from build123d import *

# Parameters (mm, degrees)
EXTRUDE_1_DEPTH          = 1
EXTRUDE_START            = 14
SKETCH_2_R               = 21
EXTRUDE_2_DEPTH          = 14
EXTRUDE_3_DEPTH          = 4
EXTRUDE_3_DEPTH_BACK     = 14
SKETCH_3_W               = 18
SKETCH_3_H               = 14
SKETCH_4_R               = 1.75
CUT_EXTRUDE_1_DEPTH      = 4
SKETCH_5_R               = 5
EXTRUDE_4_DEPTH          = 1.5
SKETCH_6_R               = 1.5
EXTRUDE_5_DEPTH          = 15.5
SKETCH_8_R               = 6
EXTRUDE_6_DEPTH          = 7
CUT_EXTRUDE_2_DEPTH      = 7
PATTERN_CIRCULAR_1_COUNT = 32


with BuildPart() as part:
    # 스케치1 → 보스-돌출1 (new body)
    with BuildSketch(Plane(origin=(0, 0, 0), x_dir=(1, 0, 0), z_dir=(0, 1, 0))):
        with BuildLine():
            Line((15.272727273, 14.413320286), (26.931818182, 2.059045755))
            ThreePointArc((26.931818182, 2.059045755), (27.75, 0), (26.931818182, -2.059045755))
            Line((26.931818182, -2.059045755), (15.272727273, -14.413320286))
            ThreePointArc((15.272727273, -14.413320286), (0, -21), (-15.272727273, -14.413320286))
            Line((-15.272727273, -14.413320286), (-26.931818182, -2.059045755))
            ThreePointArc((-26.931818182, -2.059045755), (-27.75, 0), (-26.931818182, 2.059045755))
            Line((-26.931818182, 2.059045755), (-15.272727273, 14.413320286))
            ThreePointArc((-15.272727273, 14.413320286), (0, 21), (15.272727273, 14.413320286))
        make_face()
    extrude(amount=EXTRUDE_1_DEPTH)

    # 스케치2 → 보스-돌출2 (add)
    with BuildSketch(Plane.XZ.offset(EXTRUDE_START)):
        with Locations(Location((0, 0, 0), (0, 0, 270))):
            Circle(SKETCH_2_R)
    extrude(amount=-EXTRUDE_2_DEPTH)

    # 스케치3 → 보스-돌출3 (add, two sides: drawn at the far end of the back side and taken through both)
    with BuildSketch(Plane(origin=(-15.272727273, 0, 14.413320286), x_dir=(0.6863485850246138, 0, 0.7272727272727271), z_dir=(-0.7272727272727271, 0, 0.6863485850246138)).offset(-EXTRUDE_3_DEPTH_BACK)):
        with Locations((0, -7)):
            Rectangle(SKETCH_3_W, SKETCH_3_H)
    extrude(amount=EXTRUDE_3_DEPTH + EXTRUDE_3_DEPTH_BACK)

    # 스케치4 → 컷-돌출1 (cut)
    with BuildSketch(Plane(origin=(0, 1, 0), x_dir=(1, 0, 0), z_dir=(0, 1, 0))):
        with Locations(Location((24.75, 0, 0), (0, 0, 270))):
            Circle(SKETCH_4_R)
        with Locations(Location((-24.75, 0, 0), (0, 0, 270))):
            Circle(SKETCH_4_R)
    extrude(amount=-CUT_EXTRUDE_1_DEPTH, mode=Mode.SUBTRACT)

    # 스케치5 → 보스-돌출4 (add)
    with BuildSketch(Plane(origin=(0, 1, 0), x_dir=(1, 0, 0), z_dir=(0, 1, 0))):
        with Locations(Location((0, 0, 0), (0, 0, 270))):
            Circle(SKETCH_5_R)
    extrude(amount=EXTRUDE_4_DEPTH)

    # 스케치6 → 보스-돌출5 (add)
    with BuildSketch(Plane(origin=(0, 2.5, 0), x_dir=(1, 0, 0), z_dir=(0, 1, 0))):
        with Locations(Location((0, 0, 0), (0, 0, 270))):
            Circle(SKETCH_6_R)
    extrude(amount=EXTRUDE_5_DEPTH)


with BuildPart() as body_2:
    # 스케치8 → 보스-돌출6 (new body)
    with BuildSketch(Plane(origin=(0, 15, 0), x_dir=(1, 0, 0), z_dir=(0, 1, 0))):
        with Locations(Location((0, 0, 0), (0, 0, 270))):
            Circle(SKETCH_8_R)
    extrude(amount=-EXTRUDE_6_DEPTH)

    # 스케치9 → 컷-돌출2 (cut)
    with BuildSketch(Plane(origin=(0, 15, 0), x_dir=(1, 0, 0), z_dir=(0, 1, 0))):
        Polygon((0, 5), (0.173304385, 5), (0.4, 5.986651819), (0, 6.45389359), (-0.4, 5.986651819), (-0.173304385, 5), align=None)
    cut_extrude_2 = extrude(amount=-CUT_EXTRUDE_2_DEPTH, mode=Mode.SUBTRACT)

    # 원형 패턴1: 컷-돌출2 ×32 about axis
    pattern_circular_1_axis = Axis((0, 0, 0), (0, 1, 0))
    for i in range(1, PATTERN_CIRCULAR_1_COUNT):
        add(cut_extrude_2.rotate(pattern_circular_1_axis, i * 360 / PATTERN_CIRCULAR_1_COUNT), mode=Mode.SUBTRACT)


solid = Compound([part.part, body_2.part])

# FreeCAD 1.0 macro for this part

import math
import FreeCAD as App
import Part
import Sketcher

V = App.Vector


def add_polygon(sketch, points):
    """Adds a closed chain of lines whose ends are joined by coincident constraints."""
    first, n = sketch.GeometryCount, len(points)
    for a, b in zip(points, points[1:] + points[:1]):
        sketch.addGeometry(Part.LineSegment(App.Vector(*a, 0), App.Vector(*b, 0)), False)
    for i in range(n):
        sketch.addConstraint(Sketcher.Constraint("Coincident", first + i, 2, first + (i + 1) % n, 1))

doc = App.newDocument("Part")
body = doc.addObject("PartDesign::Body", "Body")

# Sketch on XZ plane
sketch1 = doc.addObject("Sketcher::SketchObject", "Sketch")
body.addObject(sketch1)
sketch1.AttachmentSupport = (doc.XZ_Plane, [""])
sketch1.MapMode = "FlatFace"
sketch1.addGeometry(Part.LineSegment(V(26.9, -2.1, 0), V(15.3, -14.4, 0)), False)
sketch1.addGeometry(Part.ArcOfCircle(Part.Circle(V(0, 0, 0), V(0, 0, 1), 21), math.radians(-137), math.radians(-43)), False)
sketch1.addGeometry(Part.LineSegment(V(-15.3, -14.4, 0), V(-26.9, -2.1, 0)), False)
sketch1.addGeometry(Part.ArcOfCircle(Part.Circle(V(-24.8, 0, 0), V(0, 0, 1), 3), math.radians(137), math.radians(223)), False)
sketch1.addGeometry(Part.LineSegment(V(-26.9, 2.1, 0), V(-15.3, 14.4, 0)), False)
sketch1.addGeometry(Part.ArcOfCircle(Part.Circle(V(0, 0, 0), V(0, 0, 1), 21), math.radians(43), math.radians(137)), False)
sketch1.addGeometry(Part.LineSegment(V(15.3, 14.4, 0), V(26.9, 2.1, 0)), False)
sketch1.addGeometry(Part.ArcOfCircle(Part.Circle(V(24.8, 0, 0), V(0, 0, 1), 3), math.radians(-43), math.radians(43)), False)
sketch1.addConstraint(Sketcher.Constraint("Tangent", 0, 2, 1, 2))
sketch1.addConstraint(Sketcher.Constraint("Tangent", 1, 1, 2, 1))
sketch1.addConstraint(Sketcher.Constraint("Tangent", 2, 2, 3, 2))
sketch1.addConstraint(Sketcher.Constraint("Tangent", 3, 1, 4, 1))
sketch1.addConstraint(Sketcher.Constraint("Tangent", 4, 2, 5, 2))
sketch1.addConstraint(Sketcher.Constraint("Tangent", 5, 1, 6, 1))
sketch1.addConstraint(Sketcher.Constraint("Tangent", 6, 2, 7, 2))
sketch1.addConstraint(Sketcher.Constraint("Tangent", 7, 1, 0, 1))
sketch1.addConstraint(Sketcher.Constraint("Coincident", 1, 3, -1, 1))
sketch1.addConstraint(Sketcher.Constraint("Coincident", 5, 3, -1, 1))
sketch1.addConstraint(Sketcher.Constraint("Equal", 1, 5))
sketch1.addConstraint(Sketcher.Constraint("Equal", 3, 7))
sketch1.addConstraint(Sketcher.Constraint("Symmetric", 3, 3, 7, 3, -1, 1))
sketch1.addConstraint(Sketcher.Constraint("PointOnObject", 3, 3, -1))
sketch1.addConstraint(Sketcher.Constraint("Radius", 1, 21.0))
sketch1.addConstraint(Sketcher.Constraint("Radius", 3, 3.0))
sketch1.addConstraint(Sketcher.Constraint("DistanceX", 3, 3, 7, 3, 49.5))
pad1 = doc.addObject("PartDesign::Pad", "Pad")
body.addObject(pad1)
pad1.Profile = sketch1
pad1.Length = 1
pad1.Reversed = True

# Sketch on XZ plane
sketch2 = doc.addObject("Sketcher::SketchObject", "Sketch001")
body.addObject(sketch2)
sketch2.AttachmentSupport = (doc.XZ_Plane, [""])
sketch2.MapMode = "FlatFace"
sketch2.AttachmentOffset = App.Placement(V(0, 0, 14), App.Rotation())
sketch2.addGeometry(Part.Circle(V(0, 0, 0), V(0, 0, 1), 21), False)
sketch2.addConstraint(Sketcher.Constraint("Coincident", 0, 3, -1, 1))
sketch2.addConstraint(Sketcher.Constraint("Diameter", 0, 42.0))
pad2 = doc.addObject("PartDesign::Pad", "Pad001")
body.addObject(pad2)
pad2.Profile = sketch2
pad2.Length = 14
pad2.Reversed = True

# Sketch on an angled plane
sketch3 = doc.addObject("Sketcher::SketchObject", "Sketch002")
body.addObject(sketch3)
sketch3.Placement = App.Placement(V(-15.272727, 0, 14.41332), App.Rotation(V(0.686348585, 0, 0.727272727), V(0, 1, 0), V(-0.727272727, 0, 0.686348585), "ZXY"))
add_polygon(sketch3, [(-9, 0), (-9, -14), (9, -14), (9, 0)])  # lines 0-3
sketch3.addConstraint(Sketcher.Constraint("Vertical", 0))
sketch3.addConstraint(Sketcher.Constraint("Horizontal", 1))
sketch3.addConstraint(Sketcher.Constraint("Vertical", 2))
sketch3.addConstraint(Sketcher.Constraint("Horizontal", 3))
sketch3.addConstraint(Sketcher.Constraint("Symmetric", 2, 2, 3, 2, -1, 1))
sketch3.addConstraint(Sketcher.Constraint("DistanceX", 1, 1, 1, 2, 18.0))
sketch3.addConstraint(Sketcher.Constraint("DistanceY", 0, 2, 0, 1, 14.0))
pad3 = doc.addObject("PartDesign::Pad", "Pad002")
body.addObject(pad3)
pad3.Profile = sketch3
pad3.Type = "TwoLengths"
pad3.Length = 4
pad3.Length2 = 14

# Sketch on XZ plane
sketch4 = doc.addObject("Sketcher::SketchObject", "Sketch003")
body.addObject(sketch4)
sketch4.AttachmentSupport = (doc.XZ_Plane, [""])
sketch4.MapMode = "FlatFace"
sketch4.AttachmentOffset = App.Placement(V(0, 0, -1), App.Rotation())
sketch4.addGeometry(Part.Circle(V(24.8, 0, 0), V(0, 0, 1), 1.8), False)
sketch4.addGeometry(Part.Circle(V(-24.8, 0, 0), V(0, 0, 1), 1.8), False)
sketch4.addConstraint(Sketcher.Constraint("Equal", 0, 1))
sketch4.addConstraint(Sketcher.Constraint("Symmetric", 0, 3, 1, 3, -1, 1))
sketch4.addConstraint(Sketcher.Constraint("PointOnObject", 0, 3, -1))
sketch4.addConstraint(Sketcher.Constraint("Diameter", 0, 3.5))
sketch4.addConstraint(Sketcher.Constraint("DistanceX", 1, 3, 0, 3, 49.5))
pocket1 = doc.addObject("PartDesign::Pocket", "Pocket")
body.addObject(pocket1)
pocket1.Profile = sketch4
pocket1.Length = 4
pocket1.Reversed = True

# Sketch on XZ plane
sketch5 = doc.addObject("Sketcher::SketchObject", "Sketch004")
body.addObject(sketch5)
sketch5.AttachmentSupport = (doc.XZ_Plane, [""])
sketch5.MapMode = "FlatFace"
sketch5.AttachmentOffset = App.Placement(V(0, 0, -1), App.Rotation())
sketch5.addGeometry(Part.Circle(V(0, 0, 0), V(0, 0, 1), 5), False)
sketch5.addConstraint(Sketcher.Constraint("Coincident", 0, 3, -1, 1))
sketch5.addConstraint(Sketcher.Constraint("Diameter", 0, 10.0))
pad4 = doc.addObject("PartDesign::Pad", "Pad003")
body.addObject(pad4)
pad4.Profile = sketch5
pad4.Length = 1.5
pad4.Reversed = True

# Sketch on XZ plane
sketch6 = doc.addObject("Sketcher::SketchObject", "Sketch005")
body.addObject(sketch6)
sketch6.AttachmentSupport = (doc.XZ_Plane, [""])
sketch6.MapMode = "FlatFace"
sketch6.AttachmentOffset = App.Placement(V(0, 0, -2.5), App.Rotation())
sketch6.addGeometry(Part.Circle(V(0, 0, 0), V(0, 0, 1), 1.5), False)
sketch6.addConstraint(Sketcher.Constraint("Coincident", 0, 3, -1, 1))
sketch6.addConstraint(Sketcher.Constraint("Diameter", 0, 3.0))
pad5 = doc.addObject("PartDesign::Pad", "Pad004")
body.addObject(pad5)
pad5.Profile = sketch6
pad5.Length = 15.5
pad5.Reversed = True
body2 = doc.addObject("PartDesign::Body", "Body001")

# Sketch on XZ plane
sketch7 = doc.addObject("Sketcher::SketchObject", "Sketch006")
body2.addObject(sketch7)
sketch7.AttachmentSupport = (doc.getObject("XZ_Plane001"), [""])
sketch7.MapMode = "FlatFace"
sketch7.AttachmentOffset = App.Placement(V(0, 0, -15), App.Rotation())
sketch7.addGeometry(Part.Circle(V(0, 0, 0), V(0, 0, 1), 6), False)
sketch7.addConstraint(Sketcher.Constraint("Coincident", 0, 3, -1, 1))
sketch7.addConstraint(Sketcher.Constraint("Diameter", 0, 12.0))
pad6 = doc.addObject("PartDesign::Pad", "Pad005")
body2.addObject(pad6)
pad6.Profile = sketch7
pad6.Length = 7

# Sketch on XZ plane
sketch8 = doc.addObject("Sketcher::SketchObject", "Sketch007")
body2.addObject(sketch8)
sketch8.AttachmentSupport = (doc.getObject("XZ_Plane001"), [""])
sketch8.MapMode = "FlatFace"
sketch8.AttachmentOffset = App.Placement(V(0, 0, -15), App.Rotation())
add_polygon(sketch8, [(0.17, -5), (0.4, -5.99), (0, -6.45), (-0.4, -5.99), (-0.17, -5)])  # lines 0-4
sketch8.addConstraint(Sketcher.Constraint("Horizontal", 4))
sketch8.addConstraint(Sketcher.Constraint("Symmetric", 0, 2, 2, 2, -2))
sketch8.addConstraint(Sketcher.Constraint("PointOnObject", 1, 2, -2))
sketch8.addConstraint(Sketcher.Constraint("Equal", 0, 3))
sketch8.addConstraint(Sketcher.Constraint("DistanceY", 3, 2, -1, 1, 5.0))
sketch8.addConstraint(Sketcher.Constraint("DistanceX", -1, 1, 0, 2, 0.4))
sketch8.addConstraint(Sketcher.Constraint("DistanceX", 4, 1, 4, 2, 0.346609))
sketch8.addConstraint(Sketcher.Constraint("Distance", 0, 1.01236))
sketch8.addConstraint(Sketcher.Constraint("DistanceY", 1, 2, 0, 2, 0.467242))
pocket2 = doc.addObject("PartDesign::Pocket", "Pocket001")
body2.addObject(pocket2)
pocket2.Profile = sketch8
pocket2.Length = 7
pocket2.Reversed = True
doc.recompute()

polarpattern = doc.addObject("PartDesign::PolarPattern", "PolarPattern")
body2.addObject(polarpattern)
polarpattern.Originals = [pocket2]
polarpattern.Axis = (doc.getObject("Y_Axis001"), [""])
polarpattern.Angle = 360
polarpattern.Occurrences = 32
body2.Tip = polarpattern

doc.recompute()
